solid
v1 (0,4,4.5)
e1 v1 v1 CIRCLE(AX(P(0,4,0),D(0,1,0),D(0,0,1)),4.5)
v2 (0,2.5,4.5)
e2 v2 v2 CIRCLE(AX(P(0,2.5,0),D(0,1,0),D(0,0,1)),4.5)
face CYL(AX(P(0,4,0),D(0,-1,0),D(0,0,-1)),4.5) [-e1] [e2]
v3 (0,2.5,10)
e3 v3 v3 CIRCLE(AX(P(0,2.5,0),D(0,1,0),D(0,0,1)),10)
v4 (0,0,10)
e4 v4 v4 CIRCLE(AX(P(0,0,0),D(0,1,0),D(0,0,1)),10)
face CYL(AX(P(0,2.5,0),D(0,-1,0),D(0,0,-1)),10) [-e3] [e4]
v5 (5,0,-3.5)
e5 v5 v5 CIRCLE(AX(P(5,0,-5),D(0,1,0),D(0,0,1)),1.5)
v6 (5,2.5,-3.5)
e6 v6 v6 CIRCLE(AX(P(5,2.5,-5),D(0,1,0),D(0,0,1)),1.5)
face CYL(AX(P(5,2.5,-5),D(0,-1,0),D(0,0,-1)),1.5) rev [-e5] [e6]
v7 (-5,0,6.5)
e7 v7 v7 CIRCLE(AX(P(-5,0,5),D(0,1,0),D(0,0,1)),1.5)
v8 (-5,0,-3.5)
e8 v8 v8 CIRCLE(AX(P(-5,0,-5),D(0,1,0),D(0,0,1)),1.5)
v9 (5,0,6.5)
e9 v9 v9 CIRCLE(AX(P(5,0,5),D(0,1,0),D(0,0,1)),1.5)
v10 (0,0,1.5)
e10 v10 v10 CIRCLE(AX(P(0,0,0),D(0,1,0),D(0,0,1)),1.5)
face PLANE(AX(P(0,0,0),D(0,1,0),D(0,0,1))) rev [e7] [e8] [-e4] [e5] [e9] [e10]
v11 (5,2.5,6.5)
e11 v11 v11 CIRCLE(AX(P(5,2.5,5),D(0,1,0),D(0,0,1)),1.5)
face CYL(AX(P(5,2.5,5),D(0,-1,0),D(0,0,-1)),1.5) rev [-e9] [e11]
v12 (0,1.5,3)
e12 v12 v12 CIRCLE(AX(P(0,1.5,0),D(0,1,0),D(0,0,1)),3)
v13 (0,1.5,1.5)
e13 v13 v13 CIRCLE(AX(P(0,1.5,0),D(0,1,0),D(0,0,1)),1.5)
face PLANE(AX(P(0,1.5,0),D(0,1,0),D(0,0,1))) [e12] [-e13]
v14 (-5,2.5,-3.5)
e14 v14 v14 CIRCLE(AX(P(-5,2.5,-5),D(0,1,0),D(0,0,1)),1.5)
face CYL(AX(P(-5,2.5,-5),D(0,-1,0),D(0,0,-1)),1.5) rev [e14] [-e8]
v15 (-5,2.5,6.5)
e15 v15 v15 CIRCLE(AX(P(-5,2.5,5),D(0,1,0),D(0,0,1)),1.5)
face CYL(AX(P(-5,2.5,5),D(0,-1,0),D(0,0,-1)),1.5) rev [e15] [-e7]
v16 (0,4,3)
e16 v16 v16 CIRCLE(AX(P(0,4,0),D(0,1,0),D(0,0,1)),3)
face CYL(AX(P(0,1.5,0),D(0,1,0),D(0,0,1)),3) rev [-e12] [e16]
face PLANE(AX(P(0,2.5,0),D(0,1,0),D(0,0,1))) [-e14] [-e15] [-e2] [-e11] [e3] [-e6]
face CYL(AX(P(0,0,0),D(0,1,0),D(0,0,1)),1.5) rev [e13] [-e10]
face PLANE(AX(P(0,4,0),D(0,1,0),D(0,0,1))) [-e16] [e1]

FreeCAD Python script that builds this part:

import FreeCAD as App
import Part
import Sketcher
from FreeCAD import Vector
Q = App.Units.Quantity

doc = App.newDocument("Part")
body = doc.addObject("PartDesign::Body", "Body")

sketch1 = body.newObject("Sketcher::SketchObject", "Sketch")
sketch1.AttachmentSupport = (doc.getObject("XZ_Plane"), [""])
sketch1.MapMode = "FlatFace"
sketch1.addGeometry(Part.Circle(Vector(0, 0, 0), Vector(0, 0, 1), 10), False)
sketch1.addGeometry(Part.Circle(Vector(-5, -5, 0), Vector(0, 0, 1), 1.5), False)
sketch1.addGeometry(Part.Circle(Vector(-5, 5, 0), Vector(0, 0, 1), 1.5), False)
sketch1.addGeometry(Part.Circle(Vector(5, -5, 0), Vector(0, 0, 1), 1.5), False)
sketch1.addGeometry(Part.Circle(Vector(5, 5, 0), Vector(0, 0, 1), 1.5), False)
sketch1.addConstraint(Sketcher.Constraint("Coincident", 0, 3, -1, 1))
sketch1.addConstraint(Sketcher.Constraint("Equal", 1, 2))
sketch1.addConstraint(Sketcher.Constraint("Equal", 2, 3))
sketch1.addConstraint(Sketcher.Constraint("Equal", 3, 4))
sketch1.addConstraint(Sketcher.Constraint("Symmetric", 2, 3, 3, 3, -1, 1))
sketch1.addConstraint(Sketcher.Constraint("Symmetric", 1, 3, 4, 3, -1, 1))
sketch1.addConstraint(Sketcher.Constraint("Symmetric", 1, 3, 3, 3, -2))
sketch1.addConstraint(Sketcher.Constraint("Diameter", 0, Q("20 mm")))
sketch1.addConstraint(Sketcher.Constraint("Diameter", 1, Q("3 mm")))
sketch1.addConstraint(Sketcher.Constraint("DistanceX", 1, 3, -1, 1, Q("5 mm")))
sketch1.addConstraint(Sketcher.Constraint("DistanceY", 1, 3, -1, 1, Q("5 mm")))
pad1 = body.newObject("PartDesign::Pad", "Pad")
pad1.Profile = sketch1
pad1.Length = 2.5
pad1.Reversed = True

sketch2 = body.newObject("Sketcher::SketchObject", "Sketch001")
sketch2.AttachmentSupport = (doc.getObject("XZ_Plane"), [""])
sketch2.MapMode = "FlatFace"
sketch2.AttachmentOffset = App.Placement(Vector(0, 0, -2.5), App.Rotation())
sketch2.addGeometry(Part.Circle(Vector(0, 0, 0), Vector(0, 0, 1), 3), False)
sketch2.addConstraint(Sketcher.Constraint("Coincident", 0, 3, -1, 1))
sketch2.addConstraint(Sketcher.Constraint("Diameter", 0, Q("6 mm")))
pocket1 = body.newObject("PartDesign::Pocket", "Pocket")
pocket1.Profile = sketch2
pocket1.Length = 1
pocket1.Reversed = True

sketch3 = body.newObject("Sketcher::SketchObject", "Sketch002")
sketch3.AttachmentSupport = (doc.getObject("XZ_Plane"), [""])
sketch3.MapMode = "FlatFace"
sketch3.AttachmentOffset = App.Placement(Vector(0, 0, -1.5), App.Rotation())
sketch3.addGeometry(Part.Circle(Vector(0, 0, 0), Vector(0, 0, 1), 1.5), False)
sketch3.addConstraint(Sketcher.Constraint("Coincident", 0, 3, -1, 1))
sketch3.addConstraint(Sketcher.Constraint("Diameter", 0, Q("3 mm")))
pocket2 = body.newObject("PartDesign::Pocket", "Pocket001")
pocket2.Profile = sketch3
pocket2.Type = "ThroughAll"
pocket2.Reversed = True

sketch4 = body.newObject("Sketcher::SketchObject", "Sketch003")
sketch4.AttachmentSupport = (doc.getObject("XZ_Plane"), [""])
sketch4.MapMode = "FlatFace"
sketch4.AttachmentOffset = App.Placement(Vector(0, 0, -4), App.Rotation())
sketch4.addGeometry(Part.Circle(Vector(0, 0, 0), Vector(0, 0, 1), 4.5), False)
sketch4.addGeometry(Part.Circle(Vector(0, 0, 0), Vector(0, 0, 1), 3), False)
sketch4.addConstraint(Sketcher.Constraint("Coincident", 0, 3, -1, 1))
sketch4.addConstraint(Sketcher.Constraint("Coincident", 1, 3, -1, 1))
sketch4.addConstraint(Sketcher.Constraint("Diameter", 0, Q("9 mm")))
sketch4.addConstraint(Sketcher.Constraint("Diameter", 1, Q("6 mm")))
pad2 = body.newObject("PartDesign::Pad", "Pad001")
pad2.Profile = sketch4
pad2.Length = 1.5

doc.recompute()
